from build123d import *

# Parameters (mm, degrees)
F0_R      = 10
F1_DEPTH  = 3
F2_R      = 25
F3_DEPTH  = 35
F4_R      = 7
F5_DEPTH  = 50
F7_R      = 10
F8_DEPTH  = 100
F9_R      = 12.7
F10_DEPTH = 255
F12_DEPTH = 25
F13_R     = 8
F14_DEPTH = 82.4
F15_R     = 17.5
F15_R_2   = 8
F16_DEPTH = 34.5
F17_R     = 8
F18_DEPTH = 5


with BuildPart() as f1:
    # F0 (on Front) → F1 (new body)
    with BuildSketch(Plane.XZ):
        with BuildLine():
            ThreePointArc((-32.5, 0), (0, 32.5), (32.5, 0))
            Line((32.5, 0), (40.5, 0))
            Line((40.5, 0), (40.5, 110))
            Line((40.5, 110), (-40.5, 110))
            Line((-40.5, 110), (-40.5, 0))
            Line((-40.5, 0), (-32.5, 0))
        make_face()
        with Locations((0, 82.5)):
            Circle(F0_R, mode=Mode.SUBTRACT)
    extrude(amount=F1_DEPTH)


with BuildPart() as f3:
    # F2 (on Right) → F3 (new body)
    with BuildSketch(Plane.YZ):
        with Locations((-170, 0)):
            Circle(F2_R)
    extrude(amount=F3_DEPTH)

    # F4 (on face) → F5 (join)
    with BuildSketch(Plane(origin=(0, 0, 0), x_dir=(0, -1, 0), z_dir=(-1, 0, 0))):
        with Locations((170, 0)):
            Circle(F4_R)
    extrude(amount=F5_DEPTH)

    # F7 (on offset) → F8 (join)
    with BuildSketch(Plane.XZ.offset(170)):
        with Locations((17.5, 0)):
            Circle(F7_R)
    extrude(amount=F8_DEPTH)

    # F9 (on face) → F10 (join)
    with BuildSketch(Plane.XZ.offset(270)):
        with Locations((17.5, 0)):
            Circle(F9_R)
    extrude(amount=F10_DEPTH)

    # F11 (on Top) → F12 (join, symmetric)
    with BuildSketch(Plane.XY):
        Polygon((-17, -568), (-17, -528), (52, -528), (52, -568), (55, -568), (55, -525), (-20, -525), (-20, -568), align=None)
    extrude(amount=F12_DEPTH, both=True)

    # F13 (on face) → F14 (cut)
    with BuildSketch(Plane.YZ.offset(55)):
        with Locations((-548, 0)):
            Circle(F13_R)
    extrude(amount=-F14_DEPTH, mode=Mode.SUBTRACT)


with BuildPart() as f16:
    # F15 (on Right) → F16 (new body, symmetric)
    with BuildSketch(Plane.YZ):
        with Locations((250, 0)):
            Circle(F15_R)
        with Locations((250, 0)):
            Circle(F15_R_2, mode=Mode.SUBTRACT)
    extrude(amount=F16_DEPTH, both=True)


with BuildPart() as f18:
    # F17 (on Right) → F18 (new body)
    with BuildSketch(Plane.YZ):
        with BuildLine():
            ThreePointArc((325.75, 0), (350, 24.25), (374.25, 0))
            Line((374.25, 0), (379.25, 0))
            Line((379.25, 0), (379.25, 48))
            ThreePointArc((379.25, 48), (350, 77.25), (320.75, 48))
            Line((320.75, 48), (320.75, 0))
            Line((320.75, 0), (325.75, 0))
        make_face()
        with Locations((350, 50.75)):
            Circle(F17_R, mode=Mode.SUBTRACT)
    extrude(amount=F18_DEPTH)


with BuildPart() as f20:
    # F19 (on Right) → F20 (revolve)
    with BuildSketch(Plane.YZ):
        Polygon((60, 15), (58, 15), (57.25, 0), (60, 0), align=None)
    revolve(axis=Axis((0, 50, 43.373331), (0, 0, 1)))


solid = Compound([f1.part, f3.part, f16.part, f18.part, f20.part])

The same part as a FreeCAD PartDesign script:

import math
import FreeCAD as App
import Part
import Sketcher
Q = App.Units.Quantity


def add_polygon(sketch, points):
    """Adds a closed chain of lines whose ends are joined by coincident constraints."""
    first, n = sketch.GeometryCount, len(points)
    for a, b in zip(points, points[1:] + points[:1]):
        sketch.addGeometry(Part.LineSegment(App.Vector(*a, 0), App.Vector(*b, 0)), False)
    for i in range(n):
        sketch.addConstraint(Sketcher.Constraint("Coincident", first + i, 2, first + (i + 1) % n, 1))

doc = App.newDocument("Part")
body = doc.addObject("PartDesign::Body", "Body")

# Sketch on XZ plane
sketch1 = body.newObject("Sketcher::SketchObject", "Sketch")
sketch1.AttachmentSupport = (doc.getObject("XZ_Plane"), [""])
sketch1.MapMode = "FlatFace"
sketch1.addGeometry(Part.ArcOfCircle(Part.Circle(App.Vector(0, 0, 0), App.Vector(0, 0, 1), 32.5), math.radians(0), math.radians(180)), False)
sketch1.addGeometry(Part.LineSegment(App.Vector(32.5, 0, 0), App.Vector(40.5, 0, 0)), False)
sketch1.addGeometry(Part.LineSegment(App.Vector(40.5, 0, 0), App.Vector(40.5, 110, 0)), False)
sketch1.addGeometry(Part.LineSegment(App.Vector(40.5, 110, 0), App.Vector(-40.5, 110, 0)), False)
sketch1.addGeometry(Part.LineSegment(App.Vector(-40.5, 110, 0), App.Vector(-40.5, 0, 0)), False)
sketch1.addGeometry(Part.LineSegment(App.Vector(-40.5, 0, 0), App.Vector(-32.5, 0, 0)), False)
sketch1.addGeometry(Part.Circle(App.Vector(0, 82.5, 0), App.Vector(0, 0, 1), 10), False)
sketch1.addConstraint(Sketcher.Constraint("Coincident", 0, 1, 1, 1))
sketch1.addConstraint(Sketcher.Constraint("Coincident", 1, 2, 2, 1))
sketch1.addConstraint(Sketcher.Constraint("Coincident", 2, 2, 3, 1))
sketch1.addConstraint(Sketcher.Constraint("Coincident", 3, 2, 4, 1))
sketch1.addConstraint(Sketcher.Constraint("Coincident", 4, 2, 5, 1))
sketch1.addConstraint(Sketcher.Constraint("Coincident", 5, 2, 0, 2))
sketch1.addConstraint(Sketcher.Constraint("Horizontal", 1))
sketch1.addConstraint(Sketcher.Constraint("Vertical", 2))
sketch1.addConstraint(Sketcher.Constraint("Horizontal", 3))
sketch1.addConstraint(Sketcher.Constraint("Vertical", 4))
sketch1.addConstraint(Sketcher.Constraint("Horizontal", 5))
sketch1.addConstraint(Sketcher.Constraint("Coincident", 0, 3, -1, 1))
sketch1.addConstraint(Sketcher.Constraint("Symmetric", 1, 2, 4, 2, -1, 1))
sketch1.addConstraint(Sketcher.Constraint("PointOnObject", 6, 3, -2))
sketch1.addConstraint(Sketcher.Constraint("PointOnObject", 0, 1, -1))
sketch1.addConstraint(Sketcher.Constraint("Diameter", 6, Q("20 mm")))
sketch1.addConstraint(Sketcher.Constraint("Radius", 0, Q("32.5 mm")))
sketch1.addConstraint(Sketcher.Constraint("DistanceX", 1, 1, 1, 2, Q("8 mm")))
sketch1.addConstraint(Sketcher.Constraint("DistanceY", 2, 1, 2, 2, Q("110 mm")))
sketch1.addConstraint(Sketcher.Constraint("DistanceY", -1, 1, 6, 3, Q("82.5 mm")))
pad1 = body.newObject("PartDesign::Pad", "Pad")
pad1.Profile = sketch1
pad1.Length = 3
body2 = doc.addObject("PartDesign::Body", "Body001")

# Sketch on YZ plane
sketch2 = body2.newObject("Sketcher::SketchObject", "Sketch001")
sketch2.AttachmentSupport = (doc.getObject("YZ_Plane001"), [""])
sketch2.MapMode = "FlatFace"
sketch2.addGeometry(Part.Circle(App.Vector(-170, 0, 0), App.Vector(0, 0, 1), 25), False)
sketch2.addConstraint(Sketcher.Constraint("PointOnObject", 0, 3, -1))
sketch2.addConstraint(Sketcher.Constraint("Diameter", 0, Q("50 mm")))
sketch2.addConstraint(Sketcher.Constraint("DistanceX", 0, 3, -1, 1, Q("170 mm")))
pad2 = body2.newObject("PartDesign::Pad", "Pad001")
pad2.Profile = sketch2
pad2.Length = 35

# Sketch on YZ plane
sketch3 = body2.newObject("Sketcher::SketchObject", "Sketch002")
sketch3.AttachmentSupport = (doc.getObject("YZ_Plane001"), [""])
sketch3.MapMode = "FlatFace"
sketch3.addGeometry(Part.Circle(App.Vector(-170, 0, 0), App.Vector(0, 0, 1), 7), False)
sketch3.addConstraint(Sketcher.Constraint("PointOnObject", 0, 3, -1))
sketch3.addConstraint(Sketcher.Constraint("Diameter", 0, Q("14 mm")))
sketch3.addConstraint(Sketcher.Constraint("DistanceX", 0, 3, -1, 1, Q("170 mm")))
pad3 = body2.newObject("PartDesign::Pad", "Pad002")
pad3.Profile = sketch3
pad3.Length = 50
pad3.Reversed = True

# Sketch on XZ plane
sketch4 = body2.newObject("Sketcher::SketchObject", "Sketch003")
sketch4.AttachmentSupport = (doc.getObject("XZ_Plane001"), [""])
sketch4.MapMode = "FlatFace"
sketch4.AttachmentOffset = App.Placement(App.Vector(0, 0, 170), App.Rotation())
sketch4.addGeometry(Part.Circle(App.Vector(17.5, 0, 0), App.Vector(0, 0, 1), 10), False)
sketch4.addConstraint(Sketcher.Constraint("PointOnObject", 0, 3, -1))
sketch4.addConstraint(Sketcher.Constraint("Diameter", 0, Q("20 mm")))
sketch4.addConstraint(Sketcher.Constraint("DistanceX", -1, 1, 0, 3, Q("17.5 mm")))
pad4 = body2.newObject("PartDesign::Pad", "Pad003")
pad4.Profile = sketch4
pad4.Length = 100

# Sketch on XZ plane
sketch5 = body2.newObject("Sketcher::SketchObject", "Sketch004")
sketch5.AttachmentSupport = (doc.getObject("XZ_Plane001"), [""])
sketch5.MapMode = "FlatFace"
sketch5.AttachmentOffset = App.Placement(App.Vector(0, 0, 270), App.Rotation())
sketch5.addGeometry(Part.Circle(App.Vector(17.5, 0, 0), App.Vector(0, 0, 1), 12.7), False)
sketch5.addConstraint(Sketcher.Constraint("PointOnObject", 0, 3, -1))
sketch5.addConstraint(Sketcher.Constraint("Diameter", 0, Q("25.4 mm")))
sketch5.addConstraint(Sketcher.Constraint("DistanceX", -1, 1, 0, 3, Q("17.5 mm")))
pad5 = body2.newObject("PartDesign::Pad", "Pad004")
pad5.Profile = sketch5
pad5.Length = 255

# Sketch on XY plane
sketch6 = body2.newObject("Sketcher::SketchObject", "Sketch005")
sketch6.AttachmentSupport = (doc.getObject("XY_Plane001"), [""])
sketch6.MapMode = "FlatFace"
add_polygon(sketch6, [(-17, -568), (-17, -528), (52, -528), (52, -568), (55, -568), (55, -525), (-20, -525), (-20, -568)])  # lines 0-7
sketch6.addConstraint(Sketcher.Constraint("Vertical", 0))
sketch6.addConstraint(Sketcher.Constraint("Horizontal", 1))
sketch6.addConstraint(Sketcher.Constraint("Vertical", 2))
sketch6.addConstraint(Sketcher.Constraint("Horizontal", 3))
sketch6.addConstraint(Sketcher.Constraint("Vertical", 4))
sketch6.addConstraint(Sketcher.Constraint("Horizontal", 5))
sketch6.addConstraint(Sketcher.Constraint("Vertical", 6))
sketch6.addConstraint(Sketcher.Constraint("Horizontal", 7))
sketch6.addConstraint(Sketcher.Constraint("Horizontal", 3, 2, 6, 2))
sketch6.addConstraint(Sketcher.Constraint("Equal", 3, 7))
sketch6.addConstraint(Sketcher.Constraint("DistanceX", 1, 1, 1, 2, Q("69 mm")))
sketch6.addConstraint(Sketcher.Constraint("DistanceX", 3, 1, 3, 2, Q("3 mm")))
sketch6.addConstraint(Sketcher.Constraint("DistanceY", 0, 1, 0, 2, Q("40 mm")))
sketch6.addConstraint(Sketcher.Constraint("DistanceY", 4, 1, 4, 2, Q("43 mm")))
sketch6.addConstraint(Sketcher.Constraint("DistanceX", 0, 2, -1, 1, Q("17 mm")))
sketch6.addConstraint(Sketcher.Constraint("DistanceY", 0, 2, -1, 1, Q("528 mm")))
pad6 = body2.newObject("PartDesign::Pad", "Pad005")
pad6.Profile = sketch6
pad6.Length = 50
pad6.Midplane = True

# Sketch on YZ plane
sketch7 = body2.newObject("Sketcher::SketchObject", "Sketch006")
sketch7.AttachmentSupport = (doc.getObject("YZ_Plane001"), [""])
sketch7.MapMode = "FlatFace"
sketch7.AttachmentOffset = App.Placement(App.Vector(0, 0, 55), App.Rotation())
sketch7.addGeometry(Part.Circle(App.Vector(-548, 0, 0), App.Vector(0, 0, 1), 8), False)
sketch7.addConstraint(Sketcher.Constraint("PointOnObject", 0, 3, -1))
sketch7.addConstraint(Sketcher.Constraint("Diameter", 0, Q("16 mm")))
sketch7.addConstraint(Sketcher.Constraint("DistanceX", 0, 3, -1, 1, Q("548 mm")))
pocket1 = body2.newObject("PartDesign::Pocket", "Pocket")
pocket1.Profile = sketch7
pocket1.Length = 82.4
body3 = doc.addObject("PartDesign::Body", "Body002")

# Sketch on YZ plane
sketch8 = body3.newObject("Sketcher::SketchObject", "Sketch007")
sketch8.AttachmentSupport = (doc.getObject("YZ_Plane002"), [""])
sketch8.MapMode = "FlatFace"
sketch8.addGeometry(Part.Circle(App.Vector(250, 0, 0), App.Vector(0, 0, 1), 17.5), False)
sketch8.addGeometry(Part.Circle(App.Vector(250, 0, 0), App.Vector(0, 0, 1), 8), False)
sketch8.addConstraint(Sketcher.Constraint("Coincident", 1, 3, 0, 3))
sketch8.addConstraint(Sketcher.Constraint("PointOnObject", 0, 3, -1))
sketch8.addConstraint(Sketcher.Constraint("Diameter", 0, Q("35 mm")))
sketch8.addConstraint(Sketcher.Constraint("Diameter", 1, Q("16 mm")))
sketch8.addConstraint(Sketcher.Constraint("DistanceX", -1, 1, 0, 3, Q("250 mm")))
pad7 = body3.newObject("PartDesign::Pad", "Pad006")
pad7.Profile = sketch8
pad7.Length = 69
pad7.Midplane = True
body4 = doc.addObject("PartDesign::Body", "Body003")

# Sketch on YZ plane
sketch9 = body4.newObject("Sketcher::SketchObject", "Sketch008")
sketch9.AttachmentSupport = (doc.getObject("YZ_Plane003"), [""])
sketch9.MapMode = "FlatFace"
sketch9.addGeometry(Part.ArcOfCircle(Part.Circle(App.Vector(350, 0, 0), App.Vector(0, 0, 1), 24.25), math.radians(0), math.radians(180)), False)
sketch9.addGeometry(Part.LineSegment(App.Vector(374.25, 0, 0), App.Vector(379.25, 0, 0)), False)
sketch9.addGeometry(Part.LineSegment(App.Vector(379.25, 0, 0), App.Vector(379.25, 48, 0)), False)
sketch9.addGeometry(Part.ArcOfCircle(Part.Circle(App.Vector(350, 48, 0), App.Vector(0, 0, 1), 29.25), math.radians(0), math.radians(180)), False)
sketch9.addGeometry(Part.LineSegment(App.Vector(320.75, 48, 0), App.Vector(320.75, 0, 0)), False)
sketch9.addGeometry(Part.LineSegment(App.Vector(320.75, 0, 0), App.Vector(325.75, 0, 0)), False)
sketch9.addGeometry(Part.Circle(App.Vector(350, 50.75, 0), App.Vector(0, 0, 1), 8), False)
sketch9.addConstraint(Sketcher.Constraint("Coincident", 0, 1, 1, 1))
sketch9.addConstraint(Sketcher.Constraint("Coincident", 1, 2, 2, 1))
sketch9.addConstraint(Sketcher.Constraint("Tangent", 2, 2, 3, 1))
sketch9.addConstraint(Sketcher.Constraint("Tangent", 3, 2, 4, 1))
sketch9.addConstraint(Sketcher.Constraint("Coincident", 4, 2, 5, 1))
sketch9.addConstraint(Sketcher.Constraint("Coincident", 5, 2, 0, 2))
sketch9.addConstraint(Sketcher.Constraint("Horizontal", 1))
sketch9.addConstraint(Sketcher.Constraint("Vertical", 2))
sketch9.addConstraint(Sketcher.Constraint("Vertical", 4))
sketch9.addConstraint(Sketcher.Constraint("Horizontal", 5))
sketch9.addConstraint(Sketcher.Constraint("PointOnObject", 0, 3, -1))
sketch9.addConstraint(Sketcher.Constraint("PointOnObject", 0, 1, -1))
sketch9.addConstraint(Sketcher.Constraint("PointOnObject", 4, 2, -1))
sketch9.addConstraint(Sketcher.Constraint("Vertical", 0, 3, 3, 3))
sketch9.addConstraint(Sketcher.Constraint("Vertical", 3, 3, 6, 3))
sketch9.addConstraint(Sketcher.Constraint("Diameter", 6, Q("16 mm")))
sketch9.addConstraint(Sketcher.Constraint("DistanceX", 1, 1, 1, 2, Q("5 mm")))
sketch9.addConstraint(Sketcher.Constraint("DistanceY", 2, 1, 2, 2, Q("48 mm")))
sketch9.addConstraint(Sketcher.Constraint("Radius", 0, Q("24.25 mm")))
sketch9.addConstraint(Sketcher.Constraint("DistanceX", -1, 1, 0, 3, Q("350 mm")))
sketch9.addConstraint(Sketcher.Constraint("DistanceY", -1, 1, 6, 3, Q("50.75 mm")))
pad8 = body4.newObject("PartDesign::Pad", "Pad007")
pad8.Profile = sketch9
pad8.Length = 5
body5 = doc.addObject("PartDesign::Body", "Body004")

# Sketch on YZ plane
sketch10 = body5.newObject("Sketcher::SketchObject", "Sketch009")
sketch10.AttachmentSupport = (doc.getObject("YZ_Plane004"), [""])
sketch10.MapMode = "FlatFace"
add_polygon(sketch10, [(60, 15), (58, 15), (57.25, 0), (60, 0)])  # lines 0-3
sketch10.addGeometry(Part.LineSegment(App.Vector(50, 0, 0), App.Vector(50, 15, 0)), True)  # axis
sketch10.addConstraint(Sketcher.Constraint("Horizontal", 0))
sketch10.addConstraint(Sketcher.Constraint("Horizontal", 2))
sketch10.addConstraint(Sketcher.Constraint("Vertical", 3))
sketch10.addConstraint(Sketcher.Constraint("Vertical", 4))
sketch10.addConstraint(Sketcher.Constraint("PointOnObject", 1, 2, -1))
sketch10.addConstraint(Sketcher.Constraint("PointOnObject", 4, 1, -1))
sketch10.addConstraint(Sketcher.Constraint("Horizontal", 3, 2, 4, 2))
sketch10.addConstraint(Sketcher.Constraint("DistanceX", 0, 2, 0, 1, Q("2 mm")))
sketch10.addConstraint(Sketcher.Constraint("DistanceY", 3, 1, 3, 2, Q("15 mm")))
sketch10.addConstraint(Sketcher.Constraint("DistanceX", -1, 1, 0, 2, Q("58 mm")))
sketch10.addConstraint(Sketcher.Constraint("DistanceX", -1, 1, 4, 1, Q("50 mm")))
sketch10.addConstraint(Sketcher.Constraint("DistanceX", 2, 1, 2, 2, Q("2.75 mm")))
revolution = body5.newObject("PartDesign::Revolution", "Revolution")
revolution.Profile = sketch10
revolution.ReferenceAxis = (sketch10, ["Axis0"])
revolution.Angle = 360

doc.recompute()
